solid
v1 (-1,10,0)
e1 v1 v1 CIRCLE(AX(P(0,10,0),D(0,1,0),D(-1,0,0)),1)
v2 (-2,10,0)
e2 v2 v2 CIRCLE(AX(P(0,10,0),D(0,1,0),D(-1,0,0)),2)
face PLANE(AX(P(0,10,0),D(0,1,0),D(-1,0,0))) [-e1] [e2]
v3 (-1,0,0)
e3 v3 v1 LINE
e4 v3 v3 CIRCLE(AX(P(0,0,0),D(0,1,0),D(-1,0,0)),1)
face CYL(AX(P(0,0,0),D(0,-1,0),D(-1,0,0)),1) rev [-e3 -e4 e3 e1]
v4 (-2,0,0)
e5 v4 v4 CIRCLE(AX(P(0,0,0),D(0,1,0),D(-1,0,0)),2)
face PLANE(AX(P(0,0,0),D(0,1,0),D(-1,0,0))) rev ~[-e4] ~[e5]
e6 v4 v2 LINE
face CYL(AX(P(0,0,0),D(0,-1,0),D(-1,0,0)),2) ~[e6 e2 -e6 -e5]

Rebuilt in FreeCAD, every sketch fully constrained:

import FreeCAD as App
import Part
import Sketcher
from FreeCAD import Vector

doc = App.newDocument("Part")
body = doc.addObject("PartDesign::Body", "Body")

sketch1 = body.newObject("Sketcher::SketchObject", "Sketch")
sketch1.AttachmentSupport = (doc.getObject("XZ_Plane"), [""])
sketch1.MapMode = "FlatFace"
sketch1.addGeometry([
    Part.Circle(Vector(0, 0, 0), Vector(0, 0, 1), 2),
    Part.Circle(Vector(0, 0, 0), Vector(0, 0, 1), 1),
], False)
sketch1.addConstraint([
    Sketcher.Constraint("Coincident", 0, 3, -1, 1),
    Sketcher.Constraint("Coincident", 1, 3, -1, 1),
    Sketcher.Constraint("Diameter", 0, 4.0),
    Sketcher.Constraint("Diameter", 1, 2.0),
])
pad1 = body.newObject("PartDesign::Pad", "Pad")
pad1.Profile = sketch1
pad1.Length = 10
pad1.Reversed = True

doc.recompute()
